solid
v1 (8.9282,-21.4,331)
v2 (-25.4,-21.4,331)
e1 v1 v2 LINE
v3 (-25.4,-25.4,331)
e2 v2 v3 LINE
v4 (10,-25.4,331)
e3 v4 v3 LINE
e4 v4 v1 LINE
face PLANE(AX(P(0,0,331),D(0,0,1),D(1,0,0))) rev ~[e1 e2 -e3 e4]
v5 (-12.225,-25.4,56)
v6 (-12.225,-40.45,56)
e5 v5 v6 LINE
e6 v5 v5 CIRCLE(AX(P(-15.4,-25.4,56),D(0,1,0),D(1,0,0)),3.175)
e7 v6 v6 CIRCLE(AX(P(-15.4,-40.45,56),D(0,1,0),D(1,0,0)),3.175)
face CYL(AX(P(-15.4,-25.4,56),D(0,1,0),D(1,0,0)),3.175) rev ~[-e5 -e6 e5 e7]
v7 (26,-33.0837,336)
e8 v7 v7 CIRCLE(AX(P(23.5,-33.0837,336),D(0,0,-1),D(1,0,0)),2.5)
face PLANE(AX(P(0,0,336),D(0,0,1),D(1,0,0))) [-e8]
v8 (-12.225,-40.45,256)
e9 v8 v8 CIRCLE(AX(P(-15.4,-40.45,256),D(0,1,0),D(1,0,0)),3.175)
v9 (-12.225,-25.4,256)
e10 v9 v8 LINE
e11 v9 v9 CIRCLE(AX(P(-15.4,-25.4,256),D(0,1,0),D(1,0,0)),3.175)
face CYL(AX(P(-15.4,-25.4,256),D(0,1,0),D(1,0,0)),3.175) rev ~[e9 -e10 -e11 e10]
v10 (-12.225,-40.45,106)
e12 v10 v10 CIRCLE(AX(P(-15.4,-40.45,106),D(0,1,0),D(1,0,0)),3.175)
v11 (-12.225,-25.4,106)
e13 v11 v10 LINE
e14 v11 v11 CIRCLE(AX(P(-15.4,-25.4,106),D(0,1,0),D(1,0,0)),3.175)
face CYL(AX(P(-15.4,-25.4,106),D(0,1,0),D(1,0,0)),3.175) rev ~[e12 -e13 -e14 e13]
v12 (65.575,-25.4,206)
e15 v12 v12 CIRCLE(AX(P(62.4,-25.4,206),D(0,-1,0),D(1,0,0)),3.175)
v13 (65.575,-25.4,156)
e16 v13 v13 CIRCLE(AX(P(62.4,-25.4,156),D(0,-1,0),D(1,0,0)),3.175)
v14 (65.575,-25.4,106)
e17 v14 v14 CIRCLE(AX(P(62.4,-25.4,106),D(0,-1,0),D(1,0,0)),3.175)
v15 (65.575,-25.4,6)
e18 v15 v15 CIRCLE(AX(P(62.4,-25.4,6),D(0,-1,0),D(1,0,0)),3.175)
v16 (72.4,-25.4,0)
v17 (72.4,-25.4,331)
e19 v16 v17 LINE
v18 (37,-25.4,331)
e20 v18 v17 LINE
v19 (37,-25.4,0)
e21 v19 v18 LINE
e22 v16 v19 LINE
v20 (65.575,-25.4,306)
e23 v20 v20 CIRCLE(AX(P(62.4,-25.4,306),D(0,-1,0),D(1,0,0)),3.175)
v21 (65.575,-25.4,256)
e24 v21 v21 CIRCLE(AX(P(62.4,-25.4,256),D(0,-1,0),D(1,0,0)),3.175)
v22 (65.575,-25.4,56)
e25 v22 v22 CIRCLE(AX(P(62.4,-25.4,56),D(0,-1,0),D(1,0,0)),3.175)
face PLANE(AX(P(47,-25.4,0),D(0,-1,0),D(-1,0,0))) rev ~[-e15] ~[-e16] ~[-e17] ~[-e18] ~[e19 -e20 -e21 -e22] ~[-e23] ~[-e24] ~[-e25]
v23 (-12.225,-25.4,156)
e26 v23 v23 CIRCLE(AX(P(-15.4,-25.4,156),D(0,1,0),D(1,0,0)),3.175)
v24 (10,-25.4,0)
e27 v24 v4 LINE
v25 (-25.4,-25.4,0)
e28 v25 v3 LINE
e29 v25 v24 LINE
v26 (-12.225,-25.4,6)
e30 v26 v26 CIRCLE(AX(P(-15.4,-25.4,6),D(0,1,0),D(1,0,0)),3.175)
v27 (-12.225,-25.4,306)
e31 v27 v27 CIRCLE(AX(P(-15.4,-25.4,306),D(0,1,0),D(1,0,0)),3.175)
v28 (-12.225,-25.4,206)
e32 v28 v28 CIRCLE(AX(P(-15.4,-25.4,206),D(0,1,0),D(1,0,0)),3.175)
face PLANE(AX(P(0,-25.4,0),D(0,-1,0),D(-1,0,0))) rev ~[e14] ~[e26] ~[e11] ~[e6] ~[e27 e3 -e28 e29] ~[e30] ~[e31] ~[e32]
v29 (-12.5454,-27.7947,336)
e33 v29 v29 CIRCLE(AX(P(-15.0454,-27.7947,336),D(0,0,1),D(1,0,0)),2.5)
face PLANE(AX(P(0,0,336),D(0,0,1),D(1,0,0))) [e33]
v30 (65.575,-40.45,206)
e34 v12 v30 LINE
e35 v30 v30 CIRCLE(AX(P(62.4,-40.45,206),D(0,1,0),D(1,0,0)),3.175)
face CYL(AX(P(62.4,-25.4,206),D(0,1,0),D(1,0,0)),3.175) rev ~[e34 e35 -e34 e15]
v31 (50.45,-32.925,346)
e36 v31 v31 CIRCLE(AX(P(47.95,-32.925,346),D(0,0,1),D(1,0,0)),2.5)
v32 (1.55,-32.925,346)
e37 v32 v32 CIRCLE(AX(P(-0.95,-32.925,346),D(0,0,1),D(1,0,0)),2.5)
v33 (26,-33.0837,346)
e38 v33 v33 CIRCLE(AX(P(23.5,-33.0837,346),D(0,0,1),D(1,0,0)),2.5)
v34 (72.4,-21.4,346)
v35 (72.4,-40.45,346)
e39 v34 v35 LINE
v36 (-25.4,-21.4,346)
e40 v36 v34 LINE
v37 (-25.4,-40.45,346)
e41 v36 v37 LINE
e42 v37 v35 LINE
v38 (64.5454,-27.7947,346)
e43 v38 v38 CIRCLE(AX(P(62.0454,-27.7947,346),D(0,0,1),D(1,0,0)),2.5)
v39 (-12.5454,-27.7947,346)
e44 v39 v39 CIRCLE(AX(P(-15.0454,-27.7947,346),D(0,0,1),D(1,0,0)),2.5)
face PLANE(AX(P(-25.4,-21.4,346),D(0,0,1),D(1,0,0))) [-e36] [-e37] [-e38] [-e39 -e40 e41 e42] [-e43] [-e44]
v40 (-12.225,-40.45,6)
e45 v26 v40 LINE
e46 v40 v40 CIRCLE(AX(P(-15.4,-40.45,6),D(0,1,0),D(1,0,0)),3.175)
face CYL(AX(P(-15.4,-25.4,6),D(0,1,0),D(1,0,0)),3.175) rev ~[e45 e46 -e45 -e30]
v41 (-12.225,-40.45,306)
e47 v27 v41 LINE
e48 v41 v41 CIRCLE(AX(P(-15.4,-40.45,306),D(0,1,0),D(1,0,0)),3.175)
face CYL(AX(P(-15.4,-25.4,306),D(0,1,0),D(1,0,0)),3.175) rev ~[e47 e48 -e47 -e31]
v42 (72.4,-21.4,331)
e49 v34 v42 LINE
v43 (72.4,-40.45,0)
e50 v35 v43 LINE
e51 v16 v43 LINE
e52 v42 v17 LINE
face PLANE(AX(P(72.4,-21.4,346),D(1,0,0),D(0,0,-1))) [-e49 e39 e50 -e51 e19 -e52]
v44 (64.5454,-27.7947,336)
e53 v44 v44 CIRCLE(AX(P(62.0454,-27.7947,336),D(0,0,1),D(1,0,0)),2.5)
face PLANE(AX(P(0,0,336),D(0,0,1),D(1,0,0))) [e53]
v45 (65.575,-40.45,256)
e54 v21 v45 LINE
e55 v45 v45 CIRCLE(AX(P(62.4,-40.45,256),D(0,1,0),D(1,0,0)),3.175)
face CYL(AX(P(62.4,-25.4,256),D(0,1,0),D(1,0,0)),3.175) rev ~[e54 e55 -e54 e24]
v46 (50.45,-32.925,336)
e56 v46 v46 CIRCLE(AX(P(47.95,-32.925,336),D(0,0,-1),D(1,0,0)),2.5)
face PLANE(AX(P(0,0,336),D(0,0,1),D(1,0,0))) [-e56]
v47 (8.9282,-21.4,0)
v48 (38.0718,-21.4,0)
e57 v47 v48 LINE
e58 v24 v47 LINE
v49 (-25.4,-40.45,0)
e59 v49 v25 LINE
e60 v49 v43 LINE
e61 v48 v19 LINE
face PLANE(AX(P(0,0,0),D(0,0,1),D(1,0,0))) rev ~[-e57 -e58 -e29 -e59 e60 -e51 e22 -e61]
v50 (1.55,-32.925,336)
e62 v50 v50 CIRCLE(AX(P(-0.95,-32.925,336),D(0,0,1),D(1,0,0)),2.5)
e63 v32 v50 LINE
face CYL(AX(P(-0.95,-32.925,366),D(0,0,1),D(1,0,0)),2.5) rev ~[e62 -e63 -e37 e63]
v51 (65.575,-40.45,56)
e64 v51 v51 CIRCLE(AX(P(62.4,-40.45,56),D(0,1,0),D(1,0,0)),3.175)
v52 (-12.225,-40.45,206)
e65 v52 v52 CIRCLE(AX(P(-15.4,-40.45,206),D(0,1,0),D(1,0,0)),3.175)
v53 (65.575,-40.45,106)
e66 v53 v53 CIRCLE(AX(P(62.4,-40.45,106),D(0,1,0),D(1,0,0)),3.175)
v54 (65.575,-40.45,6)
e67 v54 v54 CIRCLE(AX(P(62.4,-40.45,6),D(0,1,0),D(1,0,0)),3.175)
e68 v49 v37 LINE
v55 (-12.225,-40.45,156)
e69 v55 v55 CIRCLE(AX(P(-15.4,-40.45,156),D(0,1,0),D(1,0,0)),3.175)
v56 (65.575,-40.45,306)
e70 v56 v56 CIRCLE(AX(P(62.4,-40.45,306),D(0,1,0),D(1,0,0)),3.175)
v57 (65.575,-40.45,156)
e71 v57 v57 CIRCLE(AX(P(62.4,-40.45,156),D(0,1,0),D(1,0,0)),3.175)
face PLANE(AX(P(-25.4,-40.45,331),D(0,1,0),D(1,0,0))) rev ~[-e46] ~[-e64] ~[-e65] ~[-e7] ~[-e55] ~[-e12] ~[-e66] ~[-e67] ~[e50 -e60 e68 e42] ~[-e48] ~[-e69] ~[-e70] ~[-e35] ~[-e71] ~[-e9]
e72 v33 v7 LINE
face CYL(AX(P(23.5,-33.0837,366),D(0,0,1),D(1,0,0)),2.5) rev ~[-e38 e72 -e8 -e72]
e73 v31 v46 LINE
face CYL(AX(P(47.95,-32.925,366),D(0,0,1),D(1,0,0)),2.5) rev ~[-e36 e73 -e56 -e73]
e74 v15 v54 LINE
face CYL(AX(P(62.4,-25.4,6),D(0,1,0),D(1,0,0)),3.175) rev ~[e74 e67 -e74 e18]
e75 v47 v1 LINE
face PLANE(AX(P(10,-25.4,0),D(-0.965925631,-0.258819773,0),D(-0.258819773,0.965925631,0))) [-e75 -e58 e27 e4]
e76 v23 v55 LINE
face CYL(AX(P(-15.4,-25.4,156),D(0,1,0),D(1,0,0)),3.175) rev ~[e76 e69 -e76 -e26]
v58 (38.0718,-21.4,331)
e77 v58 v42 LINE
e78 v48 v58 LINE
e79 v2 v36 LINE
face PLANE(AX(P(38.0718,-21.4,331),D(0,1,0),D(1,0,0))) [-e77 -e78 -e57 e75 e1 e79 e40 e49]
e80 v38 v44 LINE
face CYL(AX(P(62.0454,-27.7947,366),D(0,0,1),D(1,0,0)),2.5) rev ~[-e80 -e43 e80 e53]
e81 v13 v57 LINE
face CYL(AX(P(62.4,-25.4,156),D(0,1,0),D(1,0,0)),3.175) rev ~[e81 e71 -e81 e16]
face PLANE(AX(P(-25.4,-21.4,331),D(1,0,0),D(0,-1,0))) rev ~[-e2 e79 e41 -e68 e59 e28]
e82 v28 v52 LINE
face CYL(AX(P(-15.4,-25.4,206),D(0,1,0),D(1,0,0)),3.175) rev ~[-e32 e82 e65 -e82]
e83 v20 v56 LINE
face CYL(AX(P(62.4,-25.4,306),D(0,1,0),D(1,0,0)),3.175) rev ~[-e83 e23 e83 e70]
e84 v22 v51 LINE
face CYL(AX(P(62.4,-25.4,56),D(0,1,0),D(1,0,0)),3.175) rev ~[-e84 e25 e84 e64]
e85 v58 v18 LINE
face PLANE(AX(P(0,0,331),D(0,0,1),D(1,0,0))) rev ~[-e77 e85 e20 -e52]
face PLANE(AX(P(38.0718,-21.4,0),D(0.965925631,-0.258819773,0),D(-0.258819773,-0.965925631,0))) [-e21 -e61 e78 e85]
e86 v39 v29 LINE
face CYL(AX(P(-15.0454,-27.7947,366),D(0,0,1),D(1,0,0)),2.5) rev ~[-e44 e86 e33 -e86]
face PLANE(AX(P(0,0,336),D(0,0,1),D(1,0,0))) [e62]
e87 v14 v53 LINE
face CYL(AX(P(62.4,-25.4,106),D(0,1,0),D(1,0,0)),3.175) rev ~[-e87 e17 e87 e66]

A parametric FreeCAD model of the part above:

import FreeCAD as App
import Part
import Sketcher
Q = App.Units.Quantity


def add_polygon(sketch, points):
    """Adds a closed chain of lines whose ends are joined by coincident constraints."""
    first, n = sketch.GeometryCount, len(points)
    for a, b in zip(points, points[1:] + points[:1]):
        sketch.addGeometry(Part.LineSegment(App.Vector(*a, 0), App.Vector(*b, 0)), False)
    for i in range(n):
        sketch.addConstraint(Sketcher.Constraint("Coincident", first + i, 2, first + (i + 1) % n, 1))

doc = App.newDocument("Part")
params = doc.addObject("Spreadsheet::Sheet", "Params")
for row, (alias, value) in enumerate([
    ("sketch1_width", "35.4 mm"),
    ("sketch1_height", "12.7 mm"),
    ("pad1_length", "331 mm"),
    ("sketch2_height", "2.35 mm"),
    ("sketch2_width", "97.8 mm"),
    ("pad2_length", "331 mm"),
    ("sketch3_diameter", "6.35 mm"),
    ("pocket1_length", "300 mm"),
    ("sketch4_height", "19.05 mm"),
    ("pad3_length", "35 mm"),
    ("sketch5_diameter", "5 mm"),
    ("pocket2_length", "30 mm"),
    ("sketch6_diameter", "5 mm"),
    ("pocket3_length", "30 mm"),
    ("sketch7_height", "15 mm"),
    ("sketch7_height2", "20 mm"),
    ("sketch7_width", "97.8 mm"),
    ("pocket4_length", "30 mm"),
], start=1):
    params.set(f"A{row}", alias)
    params.set(f"B{row}", "=" + value)
    params.setAlias(f"B{row}", alias)

body = doc.addObject("PartDesign::Body", "Body")

sketch1 = body.newObject("Sketcher::SketchObject", "Sketch")
sketch1.AttachmentSupport = (doc.getObject("XY_Plane"), [""])
sketch1.MapMode = "FlatFace"
add_polygon(sketch1, [(37, -25.4), (38.1, -21.4), (8.9, -21.4), (10, -25.4), (-25.4, -25.4), (-25.4, -38.1), (72.4, -38.1), (72.4, -25.4)])
sketch1.addConstraint([
    Sketcher.Constraint("Horizontal", 1),
    Sketcher.Constraint("Horizontal", 3),
    Sketcher.Constraint("Vertical", 4),
    Sketcher.Constraint("Horizontal", 5),
    Sketcher.Constraint("Vertical", 6),
    Sketcher.Constraint("Horizontal", 7),
    Sketcher.Constraint("Horizontal", 3, 2, 6, 2),
    Sketcher.Constraint("Equal", 3, 7),
    Sketcher.Constraint("Equal", 0, 2),
    Sketcher.Constraint("DistanceY", 2, 2, 1, 2, 4.0),
    Sketcher.Constraint("DistanceX", 2, 2, 7, 2, 27.0),
    Sketcher.Constraint("Angle", 0, Q("75 deg")),
    Sketcher.Constraint("DistanceX", 3, 2, 3, 1, 35.4),
    Sketcher.Constraint("DistanceY", 4, 2, 4, 1, 12.7),
    Sketcher.Constraint("DistanceX", -1, 1, 2, 2, 10.0),
    Sketcher.Constraint("DistanceY", 0, 2, -1, 1, 21.4),
])
sketch1.setExpression("Constraints[20]", "Params.sketch1_width")
sketch1.setExpression("Constraints[21]", "Params.sketch1_height")
pad1 = body.newObject("PartDesign::Pad", "Pad")
pad1.Profile = sketch1
pad1.setExpression("Length", "Params.pad1_length")

sketch2 = body.newObject("Sketcher::SketchObject", "Sketch001")
sketch2.AttachmentSupport = (doc.getObject("XY_Plane"), [""])
sketch2.MapMode = "FlatFace"
add_polygon(sketch2, [(-25.4, -40.5), (-25.4, -38.1), (72.4, -38.1), (72.4, -40.5)])
sketch2.addConstraint([
    Sketcher.Constraint("Vertical", 0),
    Sketcher.Constraint("Horizontal", 1),
    Sketcher.Constraint("Vertical", 2),
    Sketcher.Constraint("Horizontal", 3),
    Sketcher.Constraint("DistanceY", 0, 1, 0, 2, 2.35),
    Sketcher.Constraint("DistanceX", 1, 1, 1, 2, 97.8),
    Sketcher.Constraint("DistanceX", 0, 2, -1, 1, 25.4),
    Sketcher.Constraint("DistanceY", 0, 2, -1, 1, 38.1),
])
sketch2.setExpression("Constraints[8]", "Params.sketch2_height")
sketch2.setExpression("Constraints[9]", "Params.sketch2_width")
pad2 = body.newObject("PartDesign::Pad", "Pad001")
pad2.Profile = sketch2
pad2.setExpression("Length", "Params.pad2_length")

sketch3 = body.newObject("Sketcher::SketchObject", "Sketch002")
sketch3.AttachmentSupport = (doc.getObject("XZ_Plane"), [""])
sketch3.MapMode = "FlatFace"
sketch3.AttachmentOffset = App.Placement(App.Vector(0, 0, 25.4), App.Rotation())
sketch3.addGeometry([
    Part.Circle(App.Vector(62.4, 306, 0), App.Vector(0, 0, 1), 3.2),
    Part.Circle(App.Vector(62.4, 6, 0), App.Vector(0, 0, 1), 3.2),
    Part.Circle(App.Vector(62.4, 56, 0), App.Vector(0, 0, 1), 3.2),
    Part.Circle(App.Vector(62.4, 106, 0), App.Vector(0, 0, 1), 3.2),
    Part.Circle(App.Vector(62.4, 156, 0), App.Vector(0, 0, 1), 3.2),
    Part.Circle(App.Vector(62.4, 206, 0), App.Vector(0, 0, 1), 3.2),
    Part.Circle(App.Vector(62.4, 256, 0), App.Vector(0, 0, 1), 3.2),
    Part.Circle(App.Vector(-15.4, 6, 0), App.Vector(0, 0, 1), 3.2),
    Part.Circle(App.Vector(-15.4, 56, 0), App.Vector(0, 0, 1), 3.2),
    Part.Circle(App.Vector(-15.4, 106, 0), App.Vector(0, 0, 1), 3.2),
    Part.Circle(App.Vector(-15.4, 156, 0), App.Vector(0, 0, 1), 3.2),
    Part.Circle(App.Vector(-15.4, 206, 0), App.Vector(0, 0, 1), 3.2),
    Part.Circle(App.Vector(-15.4, 256, 0), App.Vector(0, 0, 1), 3.2),
    Part.Circle(App.Vector(-15.4, 306, 0), App.Vector(0, 0, 1), 3.2),
], False)
sketch3.addConstraint([
    Sketcher.Constraint("Equal", 0, 1),
    Sketcher.Constraint("Equal", 1, 2),
    Sketcher.Constraint("Equal", 2, 3),
    Sketcher.Constraint("Equal", 3, 4),
    Sketcher.Constraint("Equal", 4, 5),
    Sketcher.Constraint("Equal", 5, 6),
    Sketcher.Constraint("Equal", 6, 7),
    Sketcher.Constraint("Equal", 7, 8),
    Sketcher.Constraint("Equal", 8, 9),
    Sketcher.Constraint("Equal", 9, 10),
    Sketcher.Constraint("Equal", 10, 11),
    Sketcher.Constraint("Equal", 11, 12),
    Sketcher.Constraint("Equal", 12, 13),
    Sketcher.Constraint("Horizontal", 1, 3, 7, 3),
    Sketcher.Constraint("Horizontal", 2, 3, 8, 3),
    Sketcher.Constraint("Horizontal", 3, 3, 9, 3),
    Sketcher.Constraint("Horizontal", 4, 3, 10, 3),
    Sketcher.Constraint("Horizontal", 5, 3, 11, 3),
    Sketcher.Constraint("Horizontal", 6, 3, 12, 3),
    Sketcher.Constraint("Horizontal", 0, 3, 13, 3),
    Sketcher.Constraint("Vertical", 0, 3, 1, 3),
    Sketcher.Constraint("Vertical", 1, 3, 2, 3),
    Sketcher.Constraint("Vertical", 2, 3, 3, 3),
    Sketcher.Constraint("Vertical", 3, 3, 4, 3),
    Sketcher.Constraint("Vertical", 4, 3, 5, 3),
    Sketcher.Constraint("Vertical", 5, 3, 6, 3),
    Sketcher.Constraint("Vertical", 7, 3, 8, 3),
    Sketcher.Constraint("Vertical", 8, 3, 9, 3),
    Sketcher.Constraint("Vertical", 9, 3, 10, 3),
    Sketcher.Constraint("Vertical", 10, 3, 11, 3),
    Sketcher.Constraint("Vertical", 11, 3, 12, 3),
    Sketcher.Constraint("Vertical", 12, 3, 13, 3),
    Sketcher.Constraint("Diameter", 0, 6.35),
    Sketcher.Constraint("DistanceY", 1, 3, 2, 3, 50.0),
    Sketcher.Constraint("DistanceY", 2, 3, 3, 3, 50.0),
    Sketcher.Constraint("DistanceY", 3, 3, 4, 3, 50.0),
    Sketcher.Constraint("DistanceY", 4, 3, 5, 3, 50.0),
    Sketcher.Constraint("DistanceY", 6, 3, 0, 3, 50.0),
    Sketcher.Constraint("DistanceY", 5, 3, 6, 3, 50.0),
    Sketcher.Constraint("DistanceY", -1, 1, 0, 3, 306.0),
    Sketcher.Constraint("DistanceX", -1, 1, 0, 3, 62.4),
    Sketcher.Constraint("DistanceX", 7, 3, -1, 1, 15.4),
])
sketch3.setExpression("Constraints[32]", "Params.sketch3_diameter")
pocket1 = body.newObject("PartDesign::Pocket", "Pocket")
pocket1.Profile = sketch3
pocket1.setExpression("Length", "Params.pocket1_length")
pocket1.Reversed = True

sketch4 = body.newObject("Sketcher::SketchObject", "Sketch003")
sketch4.AttachmentSupport = (doc.getObject("XY_Plane"), [""])
sketch4.MapMode = "FlatFace"
sketch4.AttachmentOffset = App.Placement(App.Vector(0, 0, 331), App.Rotation())
add_polygon(sketch4, [(72, -21), (-25, -21), (-25, -40), (72, -40)])
sketch4.addConstraint([
    Sketcher.Constraint("Horizontal", 0),
    Sketcher.Constraint("Vertical", 1),
    Sketcher.Constraint("Horizontal", 2),
    Sketcher.Constraint("Vertical", 3),
    Sketcher.Constraint("DistanceY", 1, 2, 1, 1, 19.05),
    Sketcher.Constraint("DistanceX", 0, 2, -1, 1, 25.4),
    Sketcher.Constraint("DistanceY", 0, 2, -1, 1, 21.4),
    Sketcher.Constraint("DistanceX", 0, 2, 0, 1, 97.8488),
])
sketch4.setExpression("Constraints[8]", "Params.sketch4_height")
pad3 = body.newObject("PartDesign::Pad", "Pad002")
pad3.Profile = sketch4
pad3.setExpression("Length", "Params.pad3_length")

sketch5 = body.newObject("Sketcher::SketchObject", "Sketch004")
sketch5.AttachmentSupport = (doc.getObject("XY_Plane"), [""])
sketch5.MapMode = "FlatFace"
sketch5.AttachmentOffset = App.Placement(App.Vector(0, 0, 366), App.Rotation())
sketch5.addGeometry([
    Part.Circle(App.Vector(-0.9, -32.9, 0), App.Vector(0, 0, 1), 2.5),
    Part.Circle(App.Vector(23.5, -33.1, 0), App.Vector(0, 0, 1), 2.5),
    Part.Circle(App.Vector(48, -32.9, 0), App.Vector(0, 0, 1), 2.5),
], False)
sketch5.addConstraint([
    Sketcher.Constraint("Equal", 0, 1),
    Sketcher.Constraint("Equal", 1, 2),
    Sketcher.Constraint("Horizontal", 0, 3, 2, 3),
    Sketcher.Constraint("Diameter", 0, 5.0),
    Sketcher.Constraint("DistanceX", 0, 3, 2, 3, 48.9),
    Sketcher.Constraint("DistanceX", 0, 3, 1, 3, 24.45),
    Sketcher.Constraint("DistanceX", -1, 1, 1, 3, 23.5),
    Sketcher.Constraint("DistanceY", 0, 3, -1, 1, 32.925),
    Sketcher.Constraint("DistanceY", 1, 3, -1, 1, 33.0837),
])
sketch5.setExpression("Constraints[3]", "Params.sketch5_diameter")
pocket2 = body.newObject("PartDesign::Pocket", "Pocket001")
pocket2.Profile = sketch5
pocket2.setExpression("Length", "Params.pocket2_length")

sketch6 = body.newObject("Sketcher::SketchObject", "Sketch005")
sketch6.AttachmentSupport = (doc.getObject("XY_Plane"), [""])
sketch6.MapMode = "FlatFace"
sketch6.AttachmentOffset = App.Placement(App.Vector(0, 0, 366), App.Rotation())
sketch6.addGeometry([
    Part.Circle(App.Vector(-15, -27.8, 0), App.Vector(0, 0, 1), 2.5),
    Part.Circle(App.Vector(62, -27.8, 0), App.Vector(0, 0, 1), 2.5),
], False)
sketch6.addConstraint([
    Sketcher.Constraint("Equal", 0, 1),
    Sketcher.Constraint("Horizontal", 0, 3, 1, 3),
    Sketcher.Constraint("Diameter", 0, 5.0),
    Sketcher.Constraint("DistanceX", 0, 3, -1, 1, 15.0454),
    Sketcher.Constraint("DistanceY", 0, 3, -1, 1, 27.7947),
    Sketcher.Constraint("DistanceX", -1, 1, 1, 3, 62.0454),
])
sketch6.setExpression("Constraints[2]", "Params.sketch6_diameter")
pocket3 = body.newObject("PartDesign::Pocket", "Pocket002")
pocket3.Profile = sketch6
pocket3.setExpression("Length", "Params.pocket3_length")

sketch7 = body.newObject("Sketcher::SketchObject", "Sketch006")
sketch7.AttachmentSupport = (doc.getObject("XZ_Plane"), [""])
sketch7.MapMode = "FlatFace"
sketch7.AttachmentOffset = App.Placement(App.Vector(0, 0, 21.4), App.Rotation())
add_polygon(sketch7, [(72.4, 346), (-25.4, 346), (-25.4, 366), (72.449, 366), (72.449, 331), (72.4, 331)])
sketch7.addConstraint([
    Sketcher.Constraint("Horizontal", 0),
    Sketcher.Constraint("Vertical", 1),
    Sketcher.Constraint("Horizontal", 2),
    Sketcher.Constraint("Vertical", 3),
    Sketcher.Constraint("Horizontal", 4),
    Sketcher.Constraint("Vertical", 5),
    Sketcher.Constraint("DistanceY", 5, 1, 5, 2, 15.0),
    Sketcher.Constraint("DistanceY", 1, 1, 1, 2, 20.0),
    Sketcher.Constraint("DistanceX", 0, 2, 0, 1, 97.8),
    Sketcher.Constraint("DistanceY", -1, 1, 0, 2, 346.0),
    Sketcher.Constraint("DistanceX", 0, 2, -1, 1, 25.4),
    Sketcher.Constraint("DistanceX", 2, 1, 2, 2, 97.8488),
])
sketch7.setExpression("Constraints[12]", "Params.sketch7_height")
sketch7.setExpression("Constraints[13]", "Params.sketch7_height2")
sketch7.setExpression("Constraints[14]", "Params.sketch7_width")
pocket4 = body.newObject("PartDesign::Pocket", "Pocket003")
pocket4.Profile = sketch7
pocket4.setExpression("Length", "Params.pocket4_length")
pocket4.Reversed = True

doc.recompute()
